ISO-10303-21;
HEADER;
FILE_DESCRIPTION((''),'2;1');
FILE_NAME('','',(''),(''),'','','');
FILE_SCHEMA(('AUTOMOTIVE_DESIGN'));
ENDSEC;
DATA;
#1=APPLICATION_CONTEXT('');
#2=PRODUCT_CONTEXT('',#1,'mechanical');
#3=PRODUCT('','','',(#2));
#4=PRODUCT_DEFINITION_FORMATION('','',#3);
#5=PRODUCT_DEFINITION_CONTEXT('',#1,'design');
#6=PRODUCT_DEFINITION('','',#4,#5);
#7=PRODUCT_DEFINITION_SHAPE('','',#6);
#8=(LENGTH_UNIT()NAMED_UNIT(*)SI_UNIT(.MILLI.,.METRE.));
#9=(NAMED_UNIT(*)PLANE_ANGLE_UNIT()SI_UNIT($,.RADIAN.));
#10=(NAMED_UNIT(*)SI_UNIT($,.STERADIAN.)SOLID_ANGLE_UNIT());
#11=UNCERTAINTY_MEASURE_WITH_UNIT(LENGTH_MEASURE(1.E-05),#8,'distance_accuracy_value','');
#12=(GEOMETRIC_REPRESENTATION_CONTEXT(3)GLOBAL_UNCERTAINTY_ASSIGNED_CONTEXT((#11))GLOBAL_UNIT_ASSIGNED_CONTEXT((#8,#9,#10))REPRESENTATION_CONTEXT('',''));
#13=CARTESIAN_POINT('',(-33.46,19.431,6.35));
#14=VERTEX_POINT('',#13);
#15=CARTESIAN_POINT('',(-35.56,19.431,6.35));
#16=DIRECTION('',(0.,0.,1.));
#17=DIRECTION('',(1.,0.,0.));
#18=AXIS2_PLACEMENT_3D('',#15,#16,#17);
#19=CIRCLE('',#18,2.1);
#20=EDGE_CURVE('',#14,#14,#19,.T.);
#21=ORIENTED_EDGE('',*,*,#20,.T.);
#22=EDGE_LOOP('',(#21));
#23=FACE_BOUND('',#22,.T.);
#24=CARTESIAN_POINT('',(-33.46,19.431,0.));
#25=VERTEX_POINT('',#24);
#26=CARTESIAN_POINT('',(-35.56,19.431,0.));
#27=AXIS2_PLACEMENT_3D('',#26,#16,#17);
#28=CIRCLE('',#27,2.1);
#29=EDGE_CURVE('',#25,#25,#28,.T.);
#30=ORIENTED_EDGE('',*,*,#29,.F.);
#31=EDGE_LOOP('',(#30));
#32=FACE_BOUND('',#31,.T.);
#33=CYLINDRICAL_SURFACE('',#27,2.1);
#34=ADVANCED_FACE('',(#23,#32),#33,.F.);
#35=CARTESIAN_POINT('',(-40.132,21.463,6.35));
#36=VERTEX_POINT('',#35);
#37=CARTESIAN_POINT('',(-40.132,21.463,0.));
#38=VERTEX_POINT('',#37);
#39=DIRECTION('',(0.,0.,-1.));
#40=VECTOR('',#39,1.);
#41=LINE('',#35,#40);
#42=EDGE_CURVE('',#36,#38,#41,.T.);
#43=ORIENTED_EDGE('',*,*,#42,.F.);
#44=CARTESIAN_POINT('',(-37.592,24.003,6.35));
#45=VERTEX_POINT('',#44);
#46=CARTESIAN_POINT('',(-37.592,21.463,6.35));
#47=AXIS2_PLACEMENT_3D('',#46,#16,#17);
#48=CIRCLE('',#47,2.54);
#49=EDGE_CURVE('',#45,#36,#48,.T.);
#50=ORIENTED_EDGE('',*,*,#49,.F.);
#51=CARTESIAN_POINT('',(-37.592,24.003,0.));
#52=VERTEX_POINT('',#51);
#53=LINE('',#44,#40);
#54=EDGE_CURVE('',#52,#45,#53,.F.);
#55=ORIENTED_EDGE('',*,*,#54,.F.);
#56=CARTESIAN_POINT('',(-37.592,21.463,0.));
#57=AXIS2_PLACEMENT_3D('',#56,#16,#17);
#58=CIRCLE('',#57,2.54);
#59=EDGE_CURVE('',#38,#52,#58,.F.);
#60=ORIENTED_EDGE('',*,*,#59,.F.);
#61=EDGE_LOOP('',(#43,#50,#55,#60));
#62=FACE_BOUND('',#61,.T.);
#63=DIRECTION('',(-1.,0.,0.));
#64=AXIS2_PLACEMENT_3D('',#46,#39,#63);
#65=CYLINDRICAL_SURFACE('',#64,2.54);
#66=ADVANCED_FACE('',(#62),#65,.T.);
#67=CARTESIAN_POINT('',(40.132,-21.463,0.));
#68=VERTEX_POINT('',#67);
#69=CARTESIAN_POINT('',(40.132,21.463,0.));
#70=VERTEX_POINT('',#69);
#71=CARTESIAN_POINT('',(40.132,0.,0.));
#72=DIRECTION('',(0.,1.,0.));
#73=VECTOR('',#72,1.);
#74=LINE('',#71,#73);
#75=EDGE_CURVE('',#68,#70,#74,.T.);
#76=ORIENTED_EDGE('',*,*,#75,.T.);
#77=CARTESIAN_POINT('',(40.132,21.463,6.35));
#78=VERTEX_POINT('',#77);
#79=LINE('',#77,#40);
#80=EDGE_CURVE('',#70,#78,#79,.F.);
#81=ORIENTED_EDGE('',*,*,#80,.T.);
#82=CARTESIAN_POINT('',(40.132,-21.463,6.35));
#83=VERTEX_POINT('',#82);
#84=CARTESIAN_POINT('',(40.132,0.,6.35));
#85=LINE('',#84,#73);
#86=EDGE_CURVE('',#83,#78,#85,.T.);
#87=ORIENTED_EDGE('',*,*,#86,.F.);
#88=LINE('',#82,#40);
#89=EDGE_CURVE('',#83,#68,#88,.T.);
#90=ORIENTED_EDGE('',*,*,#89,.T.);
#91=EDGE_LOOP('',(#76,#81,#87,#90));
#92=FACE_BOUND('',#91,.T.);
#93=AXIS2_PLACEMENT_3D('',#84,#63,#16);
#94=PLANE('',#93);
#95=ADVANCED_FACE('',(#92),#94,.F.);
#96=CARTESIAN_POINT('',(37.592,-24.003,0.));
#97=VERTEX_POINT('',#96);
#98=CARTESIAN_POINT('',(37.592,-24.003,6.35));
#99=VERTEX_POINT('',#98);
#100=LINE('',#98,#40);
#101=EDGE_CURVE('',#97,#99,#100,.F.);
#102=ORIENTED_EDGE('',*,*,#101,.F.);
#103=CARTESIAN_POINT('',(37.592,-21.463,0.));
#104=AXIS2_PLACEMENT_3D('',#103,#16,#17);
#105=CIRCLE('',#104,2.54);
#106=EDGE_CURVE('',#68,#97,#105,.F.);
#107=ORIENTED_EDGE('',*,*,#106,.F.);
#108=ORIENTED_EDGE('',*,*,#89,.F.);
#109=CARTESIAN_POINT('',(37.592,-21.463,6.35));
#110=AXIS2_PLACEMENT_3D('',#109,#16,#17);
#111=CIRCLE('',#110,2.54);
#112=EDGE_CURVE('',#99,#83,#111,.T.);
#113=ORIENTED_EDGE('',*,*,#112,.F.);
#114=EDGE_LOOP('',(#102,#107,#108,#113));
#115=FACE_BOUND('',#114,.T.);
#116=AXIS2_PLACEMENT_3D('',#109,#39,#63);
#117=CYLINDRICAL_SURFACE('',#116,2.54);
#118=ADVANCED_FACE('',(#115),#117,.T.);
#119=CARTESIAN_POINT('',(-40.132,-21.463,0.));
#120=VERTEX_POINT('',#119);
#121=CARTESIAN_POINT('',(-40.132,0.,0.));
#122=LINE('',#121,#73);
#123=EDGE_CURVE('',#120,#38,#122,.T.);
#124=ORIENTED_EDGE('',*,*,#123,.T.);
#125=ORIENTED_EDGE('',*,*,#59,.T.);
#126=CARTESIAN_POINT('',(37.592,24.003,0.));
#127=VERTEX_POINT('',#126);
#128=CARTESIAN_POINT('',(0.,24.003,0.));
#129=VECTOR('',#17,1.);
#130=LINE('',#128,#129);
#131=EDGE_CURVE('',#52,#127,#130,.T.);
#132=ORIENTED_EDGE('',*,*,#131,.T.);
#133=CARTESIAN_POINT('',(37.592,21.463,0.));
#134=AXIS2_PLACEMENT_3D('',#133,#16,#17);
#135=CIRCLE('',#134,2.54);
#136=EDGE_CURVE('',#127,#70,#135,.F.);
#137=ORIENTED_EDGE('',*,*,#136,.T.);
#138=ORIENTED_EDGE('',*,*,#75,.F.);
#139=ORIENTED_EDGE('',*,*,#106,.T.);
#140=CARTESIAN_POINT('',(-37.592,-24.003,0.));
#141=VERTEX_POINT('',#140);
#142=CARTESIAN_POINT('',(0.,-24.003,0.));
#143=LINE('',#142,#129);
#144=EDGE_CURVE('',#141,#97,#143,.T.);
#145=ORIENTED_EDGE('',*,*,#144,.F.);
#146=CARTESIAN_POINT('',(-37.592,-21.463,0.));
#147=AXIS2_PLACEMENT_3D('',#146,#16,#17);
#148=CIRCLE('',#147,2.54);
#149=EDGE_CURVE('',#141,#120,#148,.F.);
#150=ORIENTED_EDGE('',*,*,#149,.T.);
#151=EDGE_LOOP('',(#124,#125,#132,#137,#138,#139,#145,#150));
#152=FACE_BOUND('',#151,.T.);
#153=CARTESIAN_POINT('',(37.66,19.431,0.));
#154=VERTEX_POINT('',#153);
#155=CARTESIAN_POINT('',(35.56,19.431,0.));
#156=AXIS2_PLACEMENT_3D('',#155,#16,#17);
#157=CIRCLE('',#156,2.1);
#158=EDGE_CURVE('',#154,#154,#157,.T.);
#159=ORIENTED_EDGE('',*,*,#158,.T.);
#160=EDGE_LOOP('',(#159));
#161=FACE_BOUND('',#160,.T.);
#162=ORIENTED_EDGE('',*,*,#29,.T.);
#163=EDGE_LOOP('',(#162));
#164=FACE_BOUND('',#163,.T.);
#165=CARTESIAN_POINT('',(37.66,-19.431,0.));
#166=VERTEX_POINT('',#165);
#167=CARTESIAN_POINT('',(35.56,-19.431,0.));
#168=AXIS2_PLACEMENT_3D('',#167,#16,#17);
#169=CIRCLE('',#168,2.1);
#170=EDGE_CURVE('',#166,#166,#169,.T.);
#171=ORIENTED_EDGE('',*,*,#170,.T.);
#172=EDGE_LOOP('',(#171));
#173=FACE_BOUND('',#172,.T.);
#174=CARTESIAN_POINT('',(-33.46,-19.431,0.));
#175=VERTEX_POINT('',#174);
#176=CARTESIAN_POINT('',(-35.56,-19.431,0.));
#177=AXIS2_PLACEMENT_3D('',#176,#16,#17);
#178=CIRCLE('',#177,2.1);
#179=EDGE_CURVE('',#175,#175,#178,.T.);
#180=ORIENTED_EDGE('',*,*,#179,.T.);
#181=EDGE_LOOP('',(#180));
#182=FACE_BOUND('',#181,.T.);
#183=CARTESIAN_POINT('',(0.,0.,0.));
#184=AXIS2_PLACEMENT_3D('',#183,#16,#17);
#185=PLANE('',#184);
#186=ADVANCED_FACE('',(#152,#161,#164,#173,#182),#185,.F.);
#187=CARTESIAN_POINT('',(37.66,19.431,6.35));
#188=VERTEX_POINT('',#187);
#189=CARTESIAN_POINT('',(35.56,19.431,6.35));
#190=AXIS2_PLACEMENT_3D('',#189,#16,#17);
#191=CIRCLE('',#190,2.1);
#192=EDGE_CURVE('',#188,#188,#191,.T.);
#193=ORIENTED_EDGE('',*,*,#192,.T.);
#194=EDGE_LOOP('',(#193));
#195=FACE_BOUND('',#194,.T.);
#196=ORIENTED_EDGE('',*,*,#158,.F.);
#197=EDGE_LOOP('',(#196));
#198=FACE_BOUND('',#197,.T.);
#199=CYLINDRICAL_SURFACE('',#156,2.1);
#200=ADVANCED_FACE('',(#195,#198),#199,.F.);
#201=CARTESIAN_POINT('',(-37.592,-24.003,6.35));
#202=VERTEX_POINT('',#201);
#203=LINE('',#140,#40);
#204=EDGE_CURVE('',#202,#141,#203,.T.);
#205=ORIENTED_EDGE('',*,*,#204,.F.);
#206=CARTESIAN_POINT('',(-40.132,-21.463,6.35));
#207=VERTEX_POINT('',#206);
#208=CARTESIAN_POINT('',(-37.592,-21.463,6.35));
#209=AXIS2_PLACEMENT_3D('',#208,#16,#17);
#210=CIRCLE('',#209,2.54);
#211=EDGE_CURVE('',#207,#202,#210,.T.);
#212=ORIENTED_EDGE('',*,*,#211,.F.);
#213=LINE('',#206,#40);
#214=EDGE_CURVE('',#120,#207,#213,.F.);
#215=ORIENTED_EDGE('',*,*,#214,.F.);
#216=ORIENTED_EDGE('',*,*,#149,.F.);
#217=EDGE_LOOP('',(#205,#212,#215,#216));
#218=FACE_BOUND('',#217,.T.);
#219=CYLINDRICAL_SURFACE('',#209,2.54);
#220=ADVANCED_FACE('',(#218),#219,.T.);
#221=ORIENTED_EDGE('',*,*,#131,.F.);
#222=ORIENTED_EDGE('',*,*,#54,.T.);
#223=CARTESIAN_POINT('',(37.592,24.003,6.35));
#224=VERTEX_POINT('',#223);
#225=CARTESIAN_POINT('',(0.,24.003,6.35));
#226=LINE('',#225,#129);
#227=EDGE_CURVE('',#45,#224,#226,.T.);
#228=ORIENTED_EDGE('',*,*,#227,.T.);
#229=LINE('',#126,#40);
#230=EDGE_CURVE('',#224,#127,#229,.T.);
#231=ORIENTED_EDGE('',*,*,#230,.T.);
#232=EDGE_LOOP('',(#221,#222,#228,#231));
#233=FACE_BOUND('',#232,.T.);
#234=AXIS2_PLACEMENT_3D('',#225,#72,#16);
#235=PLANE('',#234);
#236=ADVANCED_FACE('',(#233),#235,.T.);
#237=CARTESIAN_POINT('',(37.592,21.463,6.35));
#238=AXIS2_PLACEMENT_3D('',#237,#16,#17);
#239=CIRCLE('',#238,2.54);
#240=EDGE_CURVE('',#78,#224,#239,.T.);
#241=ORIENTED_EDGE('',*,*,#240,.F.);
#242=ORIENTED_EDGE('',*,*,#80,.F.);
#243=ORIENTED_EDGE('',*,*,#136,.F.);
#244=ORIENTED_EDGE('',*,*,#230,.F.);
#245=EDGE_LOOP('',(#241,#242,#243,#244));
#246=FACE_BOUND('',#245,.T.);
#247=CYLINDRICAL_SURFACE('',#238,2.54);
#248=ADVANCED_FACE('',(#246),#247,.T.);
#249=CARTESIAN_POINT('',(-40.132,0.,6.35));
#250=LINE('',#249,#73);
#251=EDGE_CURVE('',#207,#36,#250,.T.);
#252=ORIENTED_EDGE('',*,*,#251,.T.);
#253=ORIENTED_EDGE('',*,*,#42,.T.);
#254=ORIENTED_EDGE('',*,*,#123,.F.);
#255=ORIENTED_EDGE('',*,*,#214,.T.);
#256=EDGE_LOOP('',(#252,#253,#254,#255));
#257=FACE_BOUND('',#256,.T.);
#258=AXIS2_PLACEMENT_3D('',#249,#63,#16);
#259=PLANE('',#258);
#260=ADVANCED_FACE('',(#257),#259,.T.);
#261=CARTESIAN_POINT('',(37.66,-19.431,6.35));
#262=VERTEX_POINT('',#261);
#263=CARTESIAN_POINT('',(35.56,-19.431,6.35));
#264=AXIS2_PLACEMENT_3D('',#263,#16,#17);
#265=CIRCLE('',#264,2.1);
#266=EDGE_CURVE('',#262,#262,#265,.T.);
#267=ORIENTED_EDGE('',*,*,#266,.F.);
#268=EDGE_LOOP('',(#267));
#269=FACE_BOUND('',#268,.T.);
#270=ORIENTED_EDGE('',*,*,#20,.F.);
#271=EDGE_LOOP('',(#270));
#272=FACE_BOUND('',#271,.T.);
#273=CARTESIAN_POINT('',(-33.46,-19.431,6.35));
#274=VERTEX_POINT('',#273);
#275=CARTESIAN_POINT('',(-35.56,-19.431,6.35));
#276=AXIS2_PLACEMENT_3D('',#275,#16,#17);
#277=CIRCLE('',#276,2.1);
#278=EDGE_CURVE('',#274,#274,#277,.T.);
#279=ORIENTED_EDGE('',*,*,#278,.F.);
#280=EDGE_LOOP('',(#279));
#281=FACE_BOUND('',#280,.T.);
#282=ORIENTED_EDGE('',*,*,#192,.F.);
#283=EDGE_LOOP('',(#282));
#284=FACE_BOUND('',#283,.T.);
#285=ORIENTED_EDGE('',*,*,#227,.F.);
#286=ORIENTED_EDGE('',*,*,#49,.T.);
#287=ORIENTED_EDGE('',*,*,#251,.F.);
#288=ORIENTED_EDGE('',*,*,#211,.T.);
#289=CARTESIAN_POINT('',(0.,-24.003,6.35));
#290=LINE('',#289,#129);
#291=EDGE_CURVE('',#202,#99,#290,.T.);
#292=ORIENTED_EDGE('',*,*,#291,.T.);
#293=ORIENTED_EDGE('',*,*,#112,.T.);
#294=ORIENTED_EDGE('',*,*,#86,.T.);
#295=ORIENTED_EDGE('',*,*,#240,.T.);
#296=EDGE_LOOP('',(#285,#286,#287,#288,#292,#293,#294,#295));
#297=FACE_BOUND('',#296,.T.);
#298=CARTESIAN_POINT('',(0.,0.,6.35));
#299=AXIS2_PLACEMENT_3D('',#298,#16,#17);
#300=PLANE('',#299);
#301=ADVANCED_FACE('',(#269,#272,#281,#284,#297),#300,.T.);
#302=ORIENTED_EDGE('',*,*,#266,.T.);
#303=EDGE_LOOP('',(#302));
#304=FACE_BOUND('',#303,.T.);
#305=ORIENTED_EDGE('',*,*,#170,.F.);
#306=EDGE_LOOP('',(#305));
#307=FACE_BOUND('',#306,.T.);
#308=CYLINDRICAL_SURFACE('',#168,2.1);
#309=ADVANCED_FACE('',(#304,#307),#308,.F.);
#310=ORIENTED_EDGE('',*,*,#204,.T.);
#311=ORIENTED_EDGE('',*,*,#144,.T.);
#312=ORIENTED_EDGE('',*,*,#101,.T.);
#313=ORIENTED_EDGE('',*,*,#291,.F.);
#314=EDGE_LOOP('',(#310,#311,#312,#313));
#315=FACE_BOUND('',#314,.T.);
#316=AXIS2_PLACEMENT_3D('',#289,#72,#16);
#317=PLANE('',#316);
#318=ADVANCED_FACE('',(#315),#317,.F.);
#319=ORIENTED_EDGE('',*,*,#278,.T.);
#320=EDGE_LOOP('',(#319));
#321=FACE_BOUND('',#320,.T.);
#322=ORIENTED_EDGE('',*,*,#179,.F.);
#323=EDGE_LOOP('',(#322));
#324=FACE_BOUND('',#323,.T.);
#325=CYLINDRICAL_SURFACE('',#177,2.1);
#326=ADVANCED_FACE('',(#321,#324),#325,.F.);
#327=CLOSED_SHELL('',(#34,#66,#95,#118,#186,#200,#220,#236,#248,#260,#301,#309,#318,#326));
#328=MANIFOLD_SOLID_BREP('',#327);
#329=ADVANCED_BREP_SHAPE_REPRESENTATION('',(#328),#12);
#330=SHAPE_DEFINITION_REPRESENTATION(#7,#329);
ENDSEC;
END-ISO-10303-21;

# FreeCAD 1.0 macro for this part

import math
import FreeCAD as App
import Part
import Sketcher
from FreeCAD import Vector
Q = App.Units.Quantity


def edges_at(feature, points):
    """Names of the edges that pass closest to the given points."""
    edges = feature.Shape.Edges
    near = lambda p: min(range(len(edges)), key=lambda i: edges[i].distToShape(Part.Vertex(*p))[0])
    return sorted({f"Edge{near(p) + 1}" for p in points})

doc = App.newDocument("Part")
body = doc.addObject("PartDesign::Body", "Body")

# Sketch on XY plane
sketch1 = body.newObject("Sketcher::SketchObject", "Sketch")
sketch1.AttachmentSupport = (doc.getObject("XY_Plane"), [""])
sketch1.MapMode = "FlatFace"
sketch1.addGeometry([
    Part.LineSegment(Vector(-40, 24, 0), Vector(-40, -24, 0)),
    Part.LineSegment(Vector(-40, -24, 0), Vector(40, -24, 0)),
    Part.LineSegment(Vector(40, -24, 0), Vector(40, 24, 0)),
    Part.LineSegment(Vector(40, 24, 0), Vector(-40, 24, 0)),
], False)
sketch1.addConstraint([
    Sketcher.Constraint("Coincident", 0, 2, 1, 1),
    Sketcher.Constraint("Coincident", 1, 2, 2, 1),
    Sketcher.Constraint("Coincident", 2, 2, 3, 1),
    Sketcher.Constraint("Coincident", 3, 2, 0, 1),
    Sketcher.Constraint("Vertical", 0),
    Sketcher.Constraint("Horizontal", 1),
    Sketcher.Constraint("Vertical", 2),
    Sketcher.Constraint("Horizontal", 3),
    Sketcher.Constraint("Symmetric", 0, 2, 2, 2, -1, 1),
    Sketcher.Constraint("DistanceX", 1, 1, 1, 2, Q("3.16 in")),
    Sketcher.Constraint("DistanceY", 0, 2, 0, 1, Q("1.89 in")),
])
pad1 = body.newObject("PartDesign::Pad", "Pad")
pad1.Profile = sketch1
pad1.Length = Q("0.25 in")

# Sketch on XY plane
sketch2 = body.newObject("Sketcher::SketchObject", "Sketch001")
sketch2.AttachmentSupport = (doc.getObject("XY_Plane"), [""])
sketch2.MapMode = "FlatFace"
sketch2.AttachmentOffset = App.Placement(Vector(0, 0, 0.25 * 25.4), App.Rotation())
sketch2.addGeometry([
    Part.ArcOfCircle(Part.Circle(Vector(-35.6, 19.4, 0), Vector(0, 0, 1), 2.1), math.radians(0), math.radians(270)),  # 0
    Part.ArcOfCircle(Part.Circle(Vector(-35.6, 19.4, 0), Vector(0, 0, 1), 2.1), math.radians(-90), math.radians(0)),  # 1
    Part.ArcOfCircle(Part.Circle(Vector(-35.6, -19.4, 0), Vector(0, 0, 1), 2.1), math.radians(0), math.radians(90)),  # 2
    Part.ArcOfCircle(Part.Circle(Vector(-35.6, -19.4, 0), Vector(0, 0, 1), 2.1), math.radians(90), math.radians(360)),  # 3
    Part.ArcOfCircle(Part.Circle(Vector(35.6, 19.4, 0), Vector(0, 0, 1), 2.1), math.radians(180), math.radians(270)),  # 4
    Part.ArcOfCircle(Part.Circle(Vector(35.6, 19.4, 0), Vector(0, 0, 1), 2.1), math.radians(-90), math.radians(0)),  # 5
    Part.ArcOfCircle(Part.Circle(Vector(35.6, 19.4, 0), Vector(0, 0, 1), 2.1), math.radians(0), math.radians(180)),  # 6
    Part.ArcOfCircle(Part.Circle(Vector(35.6, -19.4, 0), Vector(0, 0, 1), 2.1), math.radians(90), math.radians(180)),  # 7
    Part.ArcOfCircle(Part.Circle(Vector(35.6, -19.4, 0), Vector(0, 0, 1), 2.1), math.radians(180), math.radians(360)),  # 8
    Part.ArcOfCircle(Part.Circle(Vector(35.6, -19.4, 0), Vector(0, 0, 1), 2.1), math.radians(0), math.radians(90)),  # 9
], False)
sketch2.addConstraint([
    Sketcher.Constraint("Tangent", 0, 1, 1, 2),
    Sketcher.Constraint("Coincident", 1, 1, 0, 2),
    Sketcher.Constraint("Tangent", 2, 1, 3, 2),
    Sketcher.Constraint("Coincident", 3, 1, 2, 2),
    Sketcher.Constraint("Tangent", 4, 2, 5, 1),
    Sketcher.Constraint("Tangent", 5, 2, 6, 1),
    Sketcher.Constraint("Tangent", 6, 2, 4, 1),
    Sketcher.Constraint("Tangent", 7, 2, 8, 1),
    Sketcher.Constraint("Tangent", 8, 2, 9, 1),
    Sketcher.Constraint("Tangent", 9, 2, 7, 1),
    Sketcher.Constraint("Equal", 1, 2),
    Sketcher.Constraint("Equal", 3, 4),
    Sketcher.Constraint("Equal", 6, 7),
    Sketcher.Constraint("Symmetric", 2, 3, 4, 3, -1, 1),
    Sketcher.Constraint("Symmetric", 0, 3, 7, 3, -1, 1),
    Sketcher.Constraint("Symmetric", 0, 3, 4, 3, -2),
    Sketcher.Constraint("Horizontal", 6, 3, 0, 1),
    Sketcher.Constraint("Horizontal", 9, 3, 2, 1),
    Sketcher.Constraint("Horizontal", 0, 1, 5, 2),
    Sketcher.Constraint("Horizontal", 5, 2, 6, 2),
    Sketcher.Constraint("Horizontal", 2, 1, 7, 2),
    Sketcher.Constraint("Horizontal", 7, 2, 8, 2),
    Sketcher.Constraint("Vertical", 3, 3, 1, 1),
    Sketcher.Constraint("Vertical", 1, 1, 3, 1),
    Sketcher.Constraint("Vertical", 9, 3, 4, 2),
    Sketcher.Constraint("Vertical", 4, 2, 9, 2),
    Sketcher.Constraint("DistanceX", 0, 3, -1, 1, Q("1.4 in")),
    Sketcher.Constraint("Radius", 0, 2.1),
    Sketcher.Constraint("DistanceY", 2, 3, 0, 3, Q("1.53 in")),
])
pocket1 = body.newObject("PartDesign::Pocket", "Pocket")
pocket1.Profile = sketch2
pocket1.Type = "ThroughAll"
doc.recompute()

fillet = body.newObject("PartDesign::Fillet", "Fillet")
fillet.Base = (pocket1, edges_at(pocket1, [
    (-40.132, -24.003, 3.175),
    (-40.132, 24.003, 3.175),
    (40.132, 24.003, 3.175),
    (40.132, -24.003, 3.175),
]))
fillet.Radius = Q("0.1 in")

doc.recompute()
